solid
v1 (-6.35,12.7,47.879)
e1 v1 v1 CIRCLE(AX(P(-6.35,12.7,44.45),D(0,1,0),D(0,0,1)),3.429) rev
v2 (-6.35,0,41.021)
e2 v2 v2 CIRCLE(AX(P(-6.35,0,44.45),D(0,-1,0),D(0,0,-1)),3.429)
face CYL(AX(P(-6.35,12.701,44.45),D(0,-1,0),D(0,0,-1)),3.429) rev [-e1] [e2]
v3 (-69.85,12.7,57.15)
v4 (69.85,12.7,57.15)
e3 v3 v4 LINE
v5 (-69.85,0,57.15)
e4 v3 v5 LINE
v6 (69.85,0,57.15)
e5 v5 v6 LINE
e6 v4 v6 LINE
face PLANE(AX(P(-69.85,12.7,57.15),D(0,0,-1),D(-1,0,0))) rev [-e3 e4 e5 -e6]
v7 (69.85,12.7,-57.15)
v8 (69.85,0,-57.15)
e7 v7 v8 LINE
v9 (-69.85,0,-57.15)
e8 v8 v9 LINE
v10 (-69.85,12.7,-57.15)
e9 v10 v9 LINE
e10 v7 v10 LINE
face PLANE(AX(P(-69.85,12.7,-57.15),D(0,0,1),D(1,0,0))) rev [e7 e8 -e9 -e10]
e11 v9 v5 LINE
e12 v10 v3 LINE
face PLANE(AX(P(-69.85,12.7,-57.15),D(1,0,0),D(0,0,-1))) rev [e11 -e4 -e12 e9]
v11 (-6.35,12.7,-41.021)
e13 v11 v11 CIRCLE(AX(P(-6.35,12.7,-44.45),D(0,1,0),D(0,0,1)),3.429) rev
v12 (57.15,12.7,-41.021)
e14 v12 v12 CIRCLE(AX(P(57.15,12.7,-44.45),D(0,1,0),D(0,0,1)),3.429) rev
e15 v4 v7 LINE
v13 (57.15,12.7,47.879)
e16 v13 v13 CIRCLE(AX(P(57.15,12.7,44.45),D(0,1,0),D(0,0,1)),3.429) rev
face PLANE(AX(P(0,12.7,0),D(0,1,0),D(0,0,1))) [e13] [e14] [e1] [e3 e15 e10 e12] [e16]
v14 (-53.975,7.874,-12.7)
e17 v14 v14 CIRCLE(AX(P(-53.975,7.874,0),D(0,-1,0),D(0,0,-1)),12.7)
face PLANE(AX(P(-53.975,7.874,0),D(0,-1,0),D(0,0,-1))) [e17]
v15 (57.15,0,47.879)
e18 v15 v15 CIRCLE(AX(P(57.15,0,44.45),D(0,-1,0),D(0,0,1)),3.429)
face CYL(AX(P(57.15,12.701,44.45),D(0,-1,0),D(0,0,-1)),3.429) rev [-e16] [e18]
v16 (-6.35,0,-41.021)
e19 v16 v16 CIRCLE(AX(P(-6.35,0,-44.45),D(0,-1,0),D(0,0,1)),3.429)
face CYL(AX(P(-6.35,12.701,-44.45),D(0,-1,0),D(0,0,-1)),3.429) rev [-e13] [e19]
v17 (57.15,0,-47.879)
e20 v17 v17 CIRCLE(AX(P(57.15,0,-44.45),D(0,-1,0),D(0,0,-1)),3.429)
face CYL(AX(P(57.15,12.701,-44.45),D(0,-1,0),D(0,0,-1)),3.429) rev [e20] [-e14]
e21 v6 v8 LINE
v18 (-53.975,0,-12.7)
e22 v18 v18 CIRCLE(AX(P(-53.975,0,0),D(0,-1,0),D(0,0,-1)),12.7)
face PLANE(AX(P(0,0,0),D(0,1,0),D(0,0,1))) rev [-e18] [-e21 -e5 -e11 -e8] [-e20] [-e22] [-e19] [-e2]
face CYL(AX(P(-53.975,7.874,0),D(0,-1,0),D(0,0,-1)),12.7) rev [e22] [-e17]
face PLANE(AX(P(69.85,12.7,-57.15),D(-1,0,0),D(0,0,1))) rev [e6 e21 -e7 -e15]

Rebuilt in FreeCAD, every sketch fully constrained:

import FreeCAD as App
import Part
import Sketcher

V = App.Vector
Q = App.Units.Quantity


def add_polygon(sketch, points):
    """Adds a closed chain of lines whose ends are joined by coincident constraints."""
    first, n = sketch.GeometryCount, len(points)
    for a, b in zip(points, points[1:] + points[:1]):
        sketch.addGeometry(Part.LineSegment(App.Vector(*a, 0), App.Vector(*b, 0)), False)
    for i in range(n):
        sketch.addConstraint(Sketcher.Constraint("Coincident", first + i, 2, first + (i + 1) % n, 1))

doc = App.newDocument("Part")
params = doc.addObject("Spreadsheet::Sheet", "Params")
for row, (alias, value) in enumerate([
    ("sketch1_width", "5.5 in"),
    ("sketch1_height", "4.5 in"),
    ("pad1_length", "0.5 in"),
    ("sketch2_diameter", "0.27 in"),
    ("sketch3_diameter", "0.27 in"),
    ("sketch4_diameter", "0.27 in"),
    ("sketch5_diameter", "0.27 in"),
    ("sketch6_diameter", "1 in"),
    ("pocket5_length", "0.31 in"),
], start=1):
    params.set(f"A{row}", alias)
    params.set(f"B{row}", "=" + value)
    params.setAlias(f"B{row}", alias)

body = doc.addObject("PartDesign::Body", "Body")

# Sketch on XZ plane
sketch1 = body.newObject("Sketcher::SketchObject", "Sketch")
sketch1.AttachmentSupport = (doc.getObject("XZ_Plane"), [""])
sketch1.MapMode = "FlatFace"
add_polygon(sketch1, [(-70, -57), (-70, 57), (70, 57), (70, -57)])  # lines 0-3
sketch1.addConstraint([
    Sketcher.Constraint("Vertical", 0),
    Sketcher.Constraint("Horizontal", 1),
    Sketcher.Constraint("Vertical", 2),
    Sketcher.Constraint("Horizontal", 3),
    Sketcher.Constraint("Symmetric", 0, 2, 2, 2, -1, 1),
    Sketcher.Constraint("DistanceX", 1, 1, 1, 2, Q("5.5 in")),
    Sketcher.Constraint("DistanceY", 0, 1, 0, 2, Q("4.5 in")),
])
sketch1.setExpression("Constraints[9]", "Params.sketch1_width")
sketch1.setExpression("Constraints[10]", "Params.sketch1_height")
pad1 = body.newObject("PartDesign::Pad", "Pad")
pad1.Profile = sketch1
pad1.setExpression("Length", "Params.pad1_length")
pad1.Reversed = True

# Sketch on XZ plane
sketch2 = body.newObject("Sketcher::SketchObject", "Sketch001")
sketch2.AttachmentSupport = (doc.getObject("XZ_Plane"), [""])
sketch2.MapMode = "FlatFace"
sketch2.addGeometry(Part.Circle(V(-6.3, 44.5, 0), V(0, 0, 1), 3.4), False)
sketch2.addConstraint([
    Sketcher.Constraint("Diameter", 0, Q("0.27 in")),
    Sketcher.Constraint("DistanceX", 0, 3, -1, 1, Q("0.25 in")),
    Sketcher.Constraint("DistanceY", -1, 1, 0, 3, Q("1.75 in")),
])
sketch2.setExpression("Constraints[0]", "Params.sketch2_diameter")
pocket1 = body.newObject("PartDesign::Pocket", "Pocket")
pocket1.Profile = sketch2
pocket1.Type = "UpToFirst"

# Sketch on XZ plane
sketch3 = body.newObject("Sketcher::SketchObject", "Sketch002")
sketch3.AttachmentSupport = (doc.getObject("XZ_Plane"), [""])
sketch3.MapMode = "FlatFace"
sketch3.addGeometry(Part.Circle(V(-6.3, -44.5, 0), V(0, 0, 1), 3.4), False)
sketch3.addConstraint([
    Sketcher.Constraint("Diameter", 0, Q("0.27 in")),
    Sketcher.Constraint("DistanceX", 0, 3, -1, 1, Q("0.25 in")),
    Sketcher.Constraint("DistanceY", 0, 3, -1, 1, Q("1.75 in")),
])
sketch3.setExpression("Constraints[0]", "Params.sketch3_diameter")
pocket2 = body.newObject("PartDesign::Pocket", "Pocket001")
pocket2.Profile = sketch3
pocket2.Type = "UpToFirst"

# Sketch on XZ plane
sketch4 = body.newObject("Sketcher::SketchObject", "Sketch003")
sketch4.AttachmentSupport = (doc.getObject("XZ_Plane"), [""])
sketch4.MapMode = "FlatFace"
sketch4.addGeometry(Part.Circle(V(57.1, 44.5, 0), V(0, 0, 1), 3.4), False)
sketch4.addConstraint([
    Sketcher.Constraint("Diameter", 0, Q("0.27 in")),
    Sketcher.Constraint("DistanceX", -1, 1, 0, 3, Q("2.25 in")),
    Sketcher.Constraint("DistanceY", -1, 1, 0, 3, Q("1.75 in")),
])
sketch4.setExpression("Constraints[0]", "Params.sketch4_diameter")
pocket3 = body.newObject("PartDesign::Pocket", "Pocket002")
pocket3.Profile = sketch4
pocket3.Type = "UpToFirst"

# Sketch on XZ plane
sketch5 = body.newObject("Sketcher::SketchObject", "Sketch004")
sketch5.AttachmentSupport = (doc.getObject("XZ_Plane"), [""])
sketch5.MapMode = "FlatFace"
sketch5.addGeometry(Part.Circle(V(57.1, -44.5, 0), V(0, 0, 1), 3.4), False)
sketch5.addConstraint([
    Sketcher.Constraint("Diameter", 0, Q("0.27 in")),
    Sketcher.Constraint("DistanceX", -1, 1, 0, 3, Q("2.25 in")),
    Sketcher.Constraint("DistanceY", 0, 3, -1, 1, Q("1.75 in")),
])
sketch5.setExpression("Constraints[0]", "Params.sketch5_diameter")
pocket4 = body.newObject("PartDesign::Pocket", "Pocket003")
pocket4.Profile = sketch5
pocket4.Type = "UpToFirst"

# Sketch on XZ plane
sketch6 = body.newObject("Sketcher::SketchObject", "Sketch005")
sketch6.AttachmentSupport = (doc.getObject("XZ_Plane"), [""])
sketch6.MapMode = "FlatFace"
sketch6.addGeometry(Part.Circle(V(-54, 0, 0), V(0, 0, 1), 13), False)
sketch6.addConstraint([
    Sketcher.Constraint("PointOnObject", 0, 3, -1),
    Sketcher.Constraint("Diameter", 0, Q("1 in")),
    Sketcher.Constraint("DistanceX", 0, 3, -1, 1, Q("2.125 in")),
])
sketch6.setExpression("Constraints[1]", "Params.sketch6_diameter")
pocket5 = body.newObject("PartDesign::Pocket", "Pocket004")
pocket5.Profile = sketch6
pocket5.setExpression("Length", "Params.pocket5_length")

doc.recompute()
